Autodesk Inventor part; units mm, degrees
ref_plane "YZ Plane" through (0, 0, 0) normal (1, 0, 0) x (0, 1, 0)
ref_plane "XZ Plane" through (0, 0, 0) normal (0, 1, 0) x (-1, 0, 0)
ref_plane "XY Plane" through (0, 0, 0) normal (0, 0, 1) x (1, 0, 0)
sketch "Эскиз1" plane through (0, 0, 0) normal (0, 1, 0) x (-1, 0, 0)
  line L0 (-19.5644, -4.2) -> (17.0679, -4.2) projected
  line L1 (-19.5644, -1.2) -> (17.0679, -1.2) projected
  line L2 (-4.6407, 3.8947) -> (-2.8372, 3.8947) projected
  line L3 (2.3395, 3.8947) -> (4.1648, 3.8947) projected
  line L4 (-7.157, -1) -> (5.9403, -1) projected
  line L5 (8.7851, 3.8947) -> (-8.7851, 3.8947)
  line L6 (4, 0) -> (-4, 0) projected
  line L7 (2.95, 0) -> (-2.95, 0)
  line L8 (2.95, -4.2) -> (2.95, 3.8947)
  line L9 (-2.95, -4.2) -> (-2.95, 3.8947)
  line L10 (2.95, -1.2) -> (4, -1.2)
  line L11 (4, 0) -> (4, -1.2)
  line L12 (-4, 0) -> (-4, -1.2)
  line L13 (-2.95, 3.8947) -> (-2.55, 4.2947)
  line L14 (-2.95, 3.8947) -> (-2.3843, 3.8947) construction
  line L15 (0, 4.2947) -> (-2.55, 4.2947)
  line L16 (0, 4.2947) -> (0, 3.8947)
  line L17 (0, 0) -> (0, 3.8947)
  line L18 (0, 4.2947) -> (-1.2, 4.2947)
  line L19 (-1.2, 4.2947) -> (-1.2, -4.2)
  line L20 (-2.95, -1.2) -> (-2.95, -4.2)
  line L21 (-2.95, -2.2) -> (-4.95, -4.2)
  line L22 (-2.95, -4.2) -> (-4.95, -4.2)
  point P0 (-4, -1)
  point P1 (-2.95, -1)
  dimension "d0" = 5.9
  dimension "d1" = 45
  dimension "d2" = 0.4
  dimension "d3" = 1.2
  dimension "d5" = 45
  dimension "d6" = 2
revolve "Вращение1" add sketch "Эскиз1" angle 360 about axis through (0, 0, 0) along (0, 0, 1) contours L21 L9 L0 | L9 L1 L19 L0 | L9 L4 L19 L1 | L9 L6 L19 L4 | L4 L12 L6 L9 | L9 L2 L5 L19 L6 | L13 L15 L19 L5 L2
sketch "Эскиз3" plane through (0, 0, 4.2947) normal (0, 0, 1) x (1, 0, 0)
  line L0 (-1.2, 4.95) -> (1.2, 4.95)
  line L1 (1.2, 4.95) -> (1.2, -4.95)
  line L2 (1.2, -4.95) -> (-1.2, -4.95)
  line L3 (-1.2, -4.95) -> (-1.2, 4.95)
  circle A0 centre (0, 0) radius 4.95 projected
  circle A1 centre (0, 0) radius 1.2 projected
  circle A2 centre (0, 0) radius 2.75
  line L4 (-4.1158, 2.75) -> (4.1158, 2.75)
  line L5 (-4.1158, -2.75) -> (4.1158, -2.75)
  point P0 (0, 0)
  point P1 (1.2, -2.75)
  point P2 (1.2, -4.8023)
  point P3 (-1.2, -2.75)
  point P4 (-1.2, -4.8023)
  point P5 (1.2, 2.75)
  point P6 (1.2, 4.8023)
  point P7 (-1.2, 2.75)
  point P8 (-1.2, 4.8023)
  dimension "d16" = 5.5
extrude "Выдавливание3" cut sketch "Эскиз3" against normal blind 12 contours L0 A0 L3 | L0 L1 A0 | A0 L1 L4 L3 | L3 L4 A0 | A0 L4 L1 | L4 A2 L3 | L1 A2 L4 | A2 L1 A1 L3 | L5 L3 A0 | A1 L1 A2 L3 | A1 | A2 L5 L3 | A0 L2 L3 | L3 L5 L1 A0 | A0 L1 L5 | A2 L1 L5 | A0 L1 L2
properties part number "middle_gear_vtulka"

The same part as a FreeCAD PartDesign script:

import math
import FreeCAD as App
import Part
import Sketcher
from FreeCAD import Vector
Q = App.Units.Quantity


def add_polygon(sketch, points):
    """Adds a closed chain of lines whose ends are joined by coincident constraints."""
    first, n = sketch.GeometryCount, len(points)
    for a, b in zip(points, points[1:] + points[:1]):
        sketch.addGeometry(Part.LineSegment(App.Vector(*a, 0), App.Vector(*b, 0)), False)
    for i in range(n):
        sketch.addConstraint(Sketcher.Constraint("Coincident", first + i, 2, first + (i + 1) % n, 1))

doc = App.newDocument("Part")
body = doc.addObject("PartDesign::Body", "Body")
body.AllowCompound = True

# Sketch on XZ plane
sketch1 = doc.addObject("Sketcher::SketchObject", "Sketch")
body.addObject(sketch1)
sketch1.AttachmentSupport = (doc.XZ_Plane, [""])
sketch1.MapMode = "FlatFace"
add_polygon(sketch1, [(3, -2.2), (5, -4.2), (1.2, -4.2), (1.2, 4.3), (2.5, 4.3), (3, 3.9), (3, 0), (4, 0), (4, -1), (3, -1)])  # lines 0-9
sketch1.addConstraint([
    Sketcher.Constraint("Horizontal", 1),
    Sketcher.Constraint("Vertical", 2),
    Sketcher.Constraint("Horizontal", 3),
    Sketcher.Constraint("Vertical", 5),
    Sketcher.Constraint("Horizontal", 6),
    Sketcher.Constraint("Vertical", 7),
    Sketcher.Constraint("Horizontal", 8),
    Sketcher.Constraint("Vertical", 9),
    Sketcher.Constraint("PointOnObject", 5, 2, -1),
    Sketcher.Constraint("Parallel", 0, 4),
    Sketcher.Constraint("Vertical", 5, 2, 8, 2),
    Sketcher.Constraint("Angle", 0, Q("-45 deg")),
    Sketcher.Constraint("DistanceY", 9, 2, 9, 1, Q("1.2 mm")),
    Sketcher.Constraint("DistanceX", 4, 2, 0, 2, Q("2 mm")),
    Sketcher.Constraint("DistanceX", -1, 1, 1, 2, Q("1.2 mm")),
    Sketcher.Constraint("DistanceX", 3, 2, 4, 2, Q("0.4 mm")),
    Sketcher.Constraint("DistanceY", 7, 2, 7, 1, Q("1 mm")),
    Sketcher.Constraint("DistanceX", -1, 1, 6, 2, Q("4 mm")),
    Sketcher.Constraint("DistanceX", 1, 2, 1, 1, Q("3.75 mm")),
    Sketcher.Constraint("DistanceY", 2, 1, 2, 2, Q("8.4947 mm")),
])
revolution = doc.addObject("PartDesign::Revolution", "Revolution")
body.addObject(revolution)
revolution.Profile = sketch1
revolution.ReferenceAxis = (sketch1, ["V_Axis"])
revolution.Angle = 360

# Sketch on XY plane
sketch2 = doc.addObject("Sketcher::SketchObject", "Sketch001")
body.addObject(sketch2)
sketch2.AttachmentSupport = (doc.XY_Plane, [""])
sketch2.MapMode = "FlatFace"
sketch2.AttachmentOffset = App.Placement(Vector(0, 0, 4.2947), App.Rotation())
sketch2.addGeometry([
    Part.LineSegment(Vector(-1.2, 4.95, 0), Vector(-1.2, 4.8, 0)),  # 0
    Part.ArcOfCircle(Part.Circle(Vector(0, 0, 0), Vector(0, 0, 1), 4.95), math.radians(104), math.radians(146)),  # 1
    Part.LineSegment(Vector(-4.12, 2.75, 0), Vector(-1.2, 2.75, 0)),  # 2
    Part.LineSegment(Vector(-1.2, 2.75, 0), Vector(-1.2, -2.75, 0)),  # 3
    Part.LineSegment(Vector(-1.2, -2.75, 0), Vector(-4.12, -2.75, 0)),  # 4
    Part.ArcOfCircle(Part.Circle(Vector(0, 0, 0), Vector(0, 0, 1), 4.95), math.radians(-146), math.radians(-104)),  # 5
    Part.LineSegment(Vector(-1.2, -4.8, 0), Vector(-1.2, -4.95, 0)),  # 6
    Part.LineSegment(Vector(-1.2, -4.95, 0), Vector(1.2, -4.95, 0)),  # 7
    Part.LineSegment(Vector(1.2, -4.95, 0), Vector(1.2, -4.8, 0)),  # 8
    Part.ArcOfCircle(Part.Circle(Vector(0, 0, 0), Vector(0, 0, 1), 4.95), math.radians(-76), math.radians(-34)),  # 9
    Part.LineSegment(Vector(4.12, -2.75, 0), Vector(1.2, -2.75, 0)),  # 10
    Part.LineSegment(Vector(1.2, -2.75, 0), Vector(1.2, 2.75, 0)),  # 11
    Part.LineSegment(Vector(1.2, 2.75, 0), Vector(4.12, 2.75, 0)),  # 12
    Part.ArcOfCircle(Part.Circle(Vector(0, 0, 0), Vector(0, 0, 1), 4.95), math.radians(34), math.radians(76)),  # 13
    Part.LineSegment(Vector(1.2, 4.8, 0), Vector(1.2, 4.95, 0)),  # 14
    Part.LineSegment(Vector(1.2, 4.95, 0), Vector(-1.2, 4.95, 0)),  # 15
], False)
sketch2.addConstraint([
    Sketcher.Constraint("Coincident", 0, 2, 1, 1),
    Sketcher.Constraint("Coincident", 1, 2, 2, 1),
    Sketcher.Constraint("Coincident", 2, 2, 3, 1),
    Sketcher.Constraint("Coincident", 3, 2, 4, 1),
    Sketcher.Constraint("Coincident", 4, 2, 5, 1),
    Sketcher.Constraint("Coincident", 5, 2, 6, 1),
    Sketcher.Constraint("Coincident", 6, 2, 7, 1),
    Sketcher.Constraint("Coincident", 7, 2, 8, 1),
    Sketcher.Constraint("Coincident", 8, 2, 9, 1),
    Sketcher.Constraint("Coincident", 9, 2, 10, 1),
    Sketcher.Constraint("Coincident", 10, 2, 11, 1),
    Sketcher.Constraint("Coincident", 11, 2, 12, 1),
    Sketcher.Constraint("Coincident", 12, 2, 13, 1),
    Sketcher.Constraint("Coincident", 13, 2, 14, 1),
    Sketcher.Constraint("Coincident", 14, 2, 15, 1),
    Sketcher.Constraint("Coincident", 15, 2, 0, 1),
    Sketcher.Constraint("Vertical", 0),
    Sketcher.Constraint("Horizontal", 2),
    Sketcher.Constraint("Vertical", 3),
    Sketcher.Constraint("Horizontal", 4),
    Sketcher.Constraint("Vertical", 6),
    Sketcher.Constraint("Horizontal", 7),
    Sketcher.Constraint("Vertical", 8),
    Sketcher.Constraint("Horizontal", 10),
    Sketcher.Constraint("Vertical", 11),
    Sketcher.Constraint("Horizontal", 12),
    Sketcher.Constraint("Vertical", 14),
    Sketcher.Constraint("Horizontal", 15),
    Sketcher.Constraint("Coincident", 1, 3, -1, 1),
    Sketcher.Constraint("Coincident", 5, 3, -1, 1),
    Sketcher.Constraint("Coincident", 9, 3, -1, 1),
    Sketcher.Constraint("Coincident", 13, 3, -1, 1),
    Sketcher.Constraint("Equal", 1, 5),
    Sketcher.Constraint("Equal", 5, 9),
    Sketcher.Constraint("Equal", 9, 13),
    Sketcher.Constraint("Symmetric", 2, 2, 10, 2, -1, 1),
    Sketcher.Constraint("Symmetric", 6, 2, 14, 2, -1, 1),
    Sketcher.Constraint("Horizontal", 5, 2, 8, 2),
    Sketcher.Constraint("Horizontal", 4, 2, 9, 2),
    Sketcher.Constraint("Horizontal", 2, 2, 11, 2),
    Sketcher.Constraint("Horizontal", 0, 2, 13, 2),
    Sketcher.Constraint("Vertical", 0, 2, 2, 2),
    Sketcher.Constraint("DistanceY", 3, 2, 3, 1, Q("5.5 mm")),
    Sketcher.Constraint("Radius", 1, Q("4.95 mm")),
    Sketcher.Constraint("DistanceX", 7, 1, 7, 2, Q("2.4 mm")),
    Sketcher.Constraint("DistanceY", 6, 2, 3, 2, Q("2.2 mm")),
])
pocket1 = doc.addObject("PartDesign::Pocket", "Pocket")
body.addObject(pocket1)
pocket1.Profile = sketch2
pocket1.Length = 12

doc.recompute()
